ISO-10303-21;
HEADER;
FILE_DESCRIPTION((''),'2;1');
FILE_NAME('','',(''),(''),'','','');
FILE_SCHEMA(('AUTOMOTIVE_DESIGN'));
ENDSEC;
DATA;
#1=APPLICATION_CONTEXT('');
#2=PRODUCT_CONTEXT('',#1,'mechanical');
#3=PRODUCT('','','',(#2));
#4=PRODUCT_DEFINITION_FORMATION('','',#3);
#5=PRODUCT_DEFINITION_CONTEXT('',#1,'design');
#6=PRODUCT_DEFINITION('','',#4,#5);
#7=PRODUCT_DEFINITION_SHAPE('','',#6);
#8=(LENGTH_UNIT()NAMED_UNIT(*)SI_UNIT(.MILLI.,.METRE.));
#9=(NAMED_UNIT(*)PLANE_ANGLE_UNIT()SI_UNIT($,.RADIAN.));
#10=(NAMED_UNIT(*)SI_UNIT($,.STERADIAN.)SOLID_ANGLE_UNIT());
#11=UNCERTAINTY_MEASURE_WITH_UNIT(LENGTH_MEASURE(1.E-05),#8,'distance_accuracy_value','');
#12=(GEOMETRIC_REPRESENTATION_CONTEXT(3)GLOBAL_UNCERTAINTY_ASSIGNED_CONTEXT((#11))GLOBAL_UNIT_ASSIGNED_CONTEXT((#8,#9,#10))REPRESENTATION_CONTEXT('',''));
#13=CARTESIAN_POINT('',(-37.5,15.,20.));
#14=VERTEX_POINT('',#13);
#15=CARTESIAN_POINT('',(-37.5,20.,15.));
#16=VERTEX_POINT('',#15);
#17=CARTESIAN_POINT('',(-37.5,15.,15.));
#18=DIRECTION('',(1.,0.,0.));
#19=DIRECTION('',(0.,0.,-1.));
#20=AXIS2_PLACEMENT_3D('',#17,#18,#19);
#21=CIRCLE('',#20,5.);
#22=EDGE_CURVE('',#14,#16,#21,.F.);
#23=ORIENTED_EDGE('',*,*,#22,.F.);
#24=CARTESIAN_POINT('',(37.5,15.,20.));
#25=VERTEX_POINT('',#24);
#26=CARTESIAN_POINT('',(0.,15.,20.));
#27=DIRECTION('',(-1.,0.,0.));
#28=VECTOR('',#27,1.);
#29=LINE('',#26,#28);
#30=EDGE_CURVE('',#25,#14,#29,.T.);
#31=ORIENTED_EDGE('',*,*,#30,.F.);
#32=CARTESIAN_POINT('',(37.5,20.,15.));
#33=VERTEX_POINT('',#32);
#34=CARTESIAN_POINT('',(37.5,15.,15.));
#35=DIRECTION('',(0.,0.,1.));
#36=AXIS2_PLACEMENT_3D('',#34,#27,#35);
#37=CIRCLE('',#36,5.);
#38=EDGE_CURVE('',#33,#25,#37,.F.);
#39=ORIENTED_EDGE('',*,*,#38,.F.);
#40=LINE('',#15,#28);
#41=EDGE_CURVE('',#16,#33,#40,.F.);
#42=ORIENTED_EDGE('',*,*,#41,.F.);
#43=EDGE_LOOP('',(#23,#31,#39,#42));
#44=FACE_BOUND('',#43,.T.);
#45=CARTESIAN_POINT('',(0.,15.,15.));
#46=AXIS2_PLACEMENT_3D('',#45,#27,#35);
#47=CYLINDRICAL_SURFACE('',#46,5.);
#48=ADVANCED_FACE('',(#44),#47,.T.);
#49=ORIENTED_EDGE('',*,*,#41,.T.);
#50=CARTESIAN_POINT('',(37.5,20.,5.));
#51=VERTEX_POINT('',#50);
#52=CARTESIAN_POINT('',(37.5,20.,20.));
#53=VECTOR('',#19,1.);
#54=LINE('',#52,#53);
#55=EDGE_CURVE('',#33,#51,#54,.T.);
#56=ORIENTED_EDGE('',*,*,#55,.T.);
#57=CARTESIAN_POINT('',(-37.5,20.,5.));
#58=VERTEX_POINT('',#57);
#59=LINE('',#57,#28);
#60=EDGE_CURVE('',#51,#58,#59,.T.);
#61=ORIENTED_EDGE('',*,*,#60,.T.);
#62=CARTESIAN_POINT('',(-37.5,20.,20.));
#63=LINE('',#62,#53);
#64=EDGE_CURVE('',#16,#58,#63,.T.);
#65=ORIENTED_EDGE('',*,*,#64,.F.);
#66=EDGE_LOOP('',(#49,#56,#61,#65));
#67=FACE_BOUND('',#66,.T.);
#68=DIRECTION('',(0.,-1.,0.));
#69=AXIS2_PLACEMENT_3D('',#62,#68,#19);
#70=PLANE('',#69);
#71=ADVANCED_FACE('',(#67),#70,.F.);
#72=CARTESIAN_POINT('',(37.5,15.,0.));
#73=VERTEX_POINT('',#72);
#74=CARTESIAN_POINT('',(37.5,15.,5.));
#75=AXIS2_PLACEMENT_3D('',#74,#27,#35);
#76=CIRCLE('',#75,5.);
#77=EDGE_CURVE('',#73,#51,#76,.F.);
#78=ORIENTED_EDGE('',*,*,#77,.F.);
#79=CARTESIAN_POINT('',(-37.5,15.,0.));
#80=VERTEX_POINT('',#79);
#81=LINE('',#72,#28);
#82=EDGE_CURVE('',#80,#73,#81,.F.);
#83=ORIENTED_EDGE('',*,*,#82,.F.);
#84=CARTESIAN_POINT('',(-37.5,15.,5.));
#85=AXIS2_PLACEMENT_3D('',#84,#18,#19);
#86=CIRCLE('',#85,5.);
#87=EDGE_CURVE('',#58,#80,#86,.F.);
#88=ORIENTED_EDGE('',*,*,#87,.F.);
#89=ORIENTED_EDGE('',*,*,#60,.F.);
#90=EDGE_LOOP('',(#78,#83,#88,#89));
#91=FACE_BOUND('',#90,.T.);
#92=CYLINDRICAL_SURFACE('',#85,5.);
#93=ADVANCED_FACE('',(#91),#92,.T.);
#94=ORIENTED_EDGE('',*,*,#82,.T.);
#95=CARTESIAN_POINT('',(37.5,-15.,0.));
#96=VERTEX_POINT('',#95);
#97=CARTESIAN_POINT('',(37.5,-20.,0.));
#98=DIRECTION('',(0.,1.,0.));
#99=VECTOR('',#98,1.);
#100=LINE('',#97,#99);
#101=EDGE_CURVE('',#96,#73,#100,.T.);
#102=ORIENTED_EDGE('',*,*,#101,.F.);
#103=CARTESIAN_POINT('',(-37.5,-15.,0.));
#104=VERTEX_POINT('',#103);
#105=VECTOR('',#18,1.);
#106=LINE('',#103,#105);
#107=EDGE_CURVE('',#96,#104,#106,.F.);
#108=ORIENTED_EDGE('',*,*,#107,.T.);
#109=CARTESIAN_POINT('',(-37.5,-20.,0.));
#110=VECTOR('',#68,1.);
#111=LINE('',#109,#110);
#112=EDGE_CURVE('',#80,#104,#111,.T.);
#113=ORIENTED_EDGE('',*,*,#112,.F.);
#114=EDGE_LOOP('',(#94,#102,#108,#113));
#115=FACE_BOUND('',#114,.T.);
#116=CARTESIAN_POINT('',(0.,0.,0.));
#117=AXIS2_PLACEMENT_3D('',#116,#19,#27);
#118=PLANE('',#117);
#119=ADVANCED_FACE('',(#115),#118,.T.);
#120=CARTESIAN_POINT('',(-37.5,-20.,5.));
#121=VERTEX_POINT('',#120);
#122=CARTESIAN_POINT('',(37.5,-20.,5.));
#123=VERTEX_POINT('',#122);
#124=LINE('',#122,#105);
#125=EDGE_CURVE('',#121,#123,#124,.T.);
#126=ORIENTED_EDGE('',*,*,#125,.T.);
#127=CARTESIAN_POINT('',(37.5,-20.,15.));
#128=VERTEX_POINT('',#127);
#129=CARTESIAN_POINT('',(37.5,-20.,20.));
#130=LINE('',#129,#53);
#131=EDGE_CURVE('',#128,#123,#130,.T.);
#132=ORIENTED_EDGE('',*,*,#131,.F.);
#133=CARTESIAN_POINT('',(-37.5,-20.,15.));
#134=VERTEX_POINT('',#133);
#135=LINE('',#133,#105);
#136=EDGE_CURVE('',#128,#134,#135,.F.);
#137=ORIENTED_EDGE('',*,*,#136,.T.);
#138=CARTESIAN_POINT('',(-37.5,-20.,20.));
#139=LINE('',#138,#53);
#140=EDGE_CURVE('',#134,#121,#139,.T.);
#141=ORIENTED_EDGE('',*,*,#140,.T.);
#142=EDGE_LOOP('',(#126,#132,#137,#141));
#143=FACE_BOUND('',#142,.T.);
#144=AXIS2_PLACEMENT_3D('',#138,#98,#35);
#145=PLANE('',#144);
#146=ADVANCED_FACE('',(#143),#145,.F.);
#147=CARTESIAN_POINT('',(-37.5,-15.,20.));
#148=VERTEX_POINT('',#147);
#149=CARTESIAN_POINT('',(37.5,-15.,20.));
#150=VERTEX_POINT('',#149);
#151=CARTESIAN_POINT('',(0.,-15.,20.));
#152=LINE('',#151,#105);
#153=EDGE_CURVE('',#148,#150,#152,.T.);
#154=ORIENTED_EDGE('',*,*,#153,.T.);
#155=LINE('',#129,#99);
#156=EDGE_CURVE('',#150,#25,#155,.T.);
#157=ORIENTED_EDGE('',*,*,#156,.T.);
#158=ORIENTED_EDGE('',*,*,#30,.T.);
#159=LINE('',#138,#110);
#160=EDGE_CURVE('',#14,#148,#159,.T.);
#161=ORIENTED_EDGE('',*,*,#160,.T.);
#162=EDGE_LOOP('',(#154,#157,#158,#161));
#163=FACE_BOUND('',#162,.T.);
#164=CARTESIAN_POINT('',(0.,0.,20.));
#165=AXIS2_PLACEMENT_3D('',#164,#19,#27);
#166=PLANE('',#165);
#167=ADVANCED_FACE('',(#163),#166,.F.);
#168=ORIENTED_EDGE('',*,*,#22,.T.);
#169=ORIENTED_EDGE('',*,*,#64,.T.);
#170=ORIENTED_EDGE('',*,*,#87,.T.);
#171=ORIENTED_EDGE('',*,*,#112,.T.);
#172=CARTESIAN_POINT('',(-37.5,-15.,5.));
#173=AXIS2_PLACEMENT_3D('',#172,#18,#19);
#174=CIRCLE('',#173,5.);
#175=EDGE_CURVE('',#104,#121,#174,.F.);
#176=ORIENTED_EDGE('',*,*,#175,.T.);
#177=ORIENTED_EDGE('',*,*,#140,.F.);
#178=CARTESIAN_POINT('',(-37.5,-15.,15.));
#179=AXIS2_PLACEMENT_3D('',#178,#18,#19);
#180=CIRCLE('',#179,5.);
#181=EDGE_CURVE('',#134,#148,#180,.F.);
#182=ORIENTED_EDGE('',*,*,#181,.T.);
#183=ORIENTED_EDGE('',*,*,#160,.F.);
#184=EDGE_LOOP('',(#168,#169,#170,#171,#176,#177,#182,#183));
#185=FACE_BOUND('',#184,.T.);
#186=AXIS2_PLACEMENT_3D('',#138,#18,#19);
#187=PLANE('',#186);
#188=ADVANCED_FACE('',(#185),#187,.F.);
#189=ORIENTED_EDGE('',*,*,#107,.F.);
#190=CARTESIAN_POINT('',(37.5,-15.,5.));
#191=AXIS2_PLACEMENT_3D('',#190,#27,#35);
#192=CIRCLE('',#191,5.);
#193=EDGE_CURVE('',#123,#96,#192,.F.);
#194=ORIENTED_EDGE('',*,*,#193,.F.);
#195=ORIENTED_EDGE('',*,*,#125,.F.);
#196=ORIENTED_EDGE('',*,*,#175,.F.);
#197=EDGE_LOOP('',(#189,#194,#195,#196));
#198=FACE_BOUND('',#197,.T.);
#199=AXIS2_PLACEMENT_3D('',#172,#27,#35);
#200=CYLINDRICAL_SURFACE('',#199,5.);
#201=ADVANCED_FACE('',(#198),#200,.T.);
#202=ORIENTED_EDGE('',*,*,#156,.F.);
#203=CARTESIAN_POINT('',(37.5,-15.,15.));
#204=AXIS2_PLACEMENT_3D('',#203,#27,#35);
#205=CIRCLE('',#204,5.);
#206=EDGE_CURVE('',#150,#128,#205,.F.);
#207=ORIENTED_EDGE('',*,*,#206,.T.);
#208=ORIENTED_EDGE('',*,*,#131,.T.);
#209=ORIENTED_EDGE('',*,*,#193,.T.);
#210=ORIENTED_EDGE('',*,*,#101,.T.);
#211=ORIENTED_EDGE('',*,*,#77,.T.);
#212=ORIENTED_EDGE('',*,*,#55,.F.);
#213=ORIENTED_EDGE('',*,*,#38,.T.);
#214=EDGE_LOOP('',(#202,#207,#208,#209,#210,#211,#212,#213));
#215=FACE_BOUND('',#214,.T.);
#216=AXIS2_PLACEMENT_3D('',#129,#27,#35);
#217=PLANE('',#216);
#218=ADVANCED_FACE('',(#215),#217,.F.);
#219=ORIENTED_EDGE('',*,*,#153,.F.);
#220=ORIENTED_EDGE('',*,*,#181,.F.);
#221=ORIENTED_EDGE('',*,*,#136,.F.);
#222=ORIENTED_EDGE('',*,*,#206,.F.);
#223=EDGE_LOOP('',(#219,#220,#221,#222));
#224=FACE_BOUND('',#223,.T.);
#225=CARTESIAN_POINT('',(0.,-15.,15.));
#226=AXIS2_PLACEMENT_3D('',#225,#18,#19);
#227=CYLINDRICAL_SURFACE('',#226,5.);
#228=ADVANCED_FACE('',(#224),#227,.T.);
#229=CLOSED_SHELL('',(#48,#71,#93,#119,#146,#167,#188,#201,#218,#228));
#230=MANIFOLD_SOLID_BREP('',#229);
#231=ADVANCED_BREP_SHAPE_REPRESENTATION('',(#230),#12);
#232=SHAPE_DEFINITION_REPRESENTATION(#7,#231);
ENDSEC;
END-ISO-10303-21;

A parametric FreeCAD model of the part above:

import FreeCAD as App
import Part
import Sketcher
Q = App.Units.Quantity


def edges_at(feature, points):
    """Names of the edges that pass closest to the given points."""
    edges = feature.Shape.Edges
    near = lambda p: min(range(len(edges)), key=lambda i: edges[i].distToShape(Part.Vertex(*p))[0])
    return sorted({f"Edge{near(p) + 1}" for p in points})


def add_polygon(sketch, points):
    """Adds a closed chain of lines whose ends are joined by coincident constraints."""
    first, n = sketch.GeometryCount, len(points)
    for a, b in zip(points, points[1:] + points[:1]):
        sketch.addGeometry(Part.LineSegment(App.Vector(*a, 0), App.Vector(*b, 0)), False)
    for i in range(n):
        sketch.addConstraint(Sketcher.Constraint("Coincident", first + i, 2, first + (i + 1) % n, 1))

doc = App.newDocument("Part")
body = doc.addObject("PartDesign::Body", "Body")

# Sketch on XY plane
sketch1 = body.newObject("Sketcher::SketchObject", "Sketch")
sketch1.AttachmentSupport = (doc.getObject("XY_Plane"), [""])
sketch1.MapMode = "FlatFace"
add_polygon(sketch1, [(-38, 20), (-38, -20), (38, -20), (38, 20)])  # lines 0-3
sketch1.addConstraint(Sketcher.Constraint("Vertical", 0))
sketch1.addConstraint(Sketcher.Constraint("Horizontal", 1))
sketch1.addConstraint(Sketcher.Constraint("Vertical", 2))
sketch1.addConstraint(Sketcher.Constraint("Horizontal", 3))
sketch1.addConstraint(Sketcher.Constraint("Symmetric", 0, 2, 2, 2, -1, 1))
sketch1.addConstraint(Sketcher.Constraint("DistanceX", 1, 1, 1, 2, Q("75 mm")))
sketch1.addConstraint(Sketcher.Constraint("DistanceY", 0, 2, 0, 1, Q("40 mm")))
pad1 = body.newObject("PartDesign::Pad", "Pad")
pad1.Profile = sketch1
pad1.Length = 20
doc.recompute()

fillet = body.newObject("PartDesign::Fillet", "Fillet")
fillet.Base = (pad1, edges_at(pad1, [
    (0, -20, 20),
    (0, -20, 0),
    (0, 20, 0),
    (0, 20, 20),
]))
fillet.Radius = 5

doc.recompute()
